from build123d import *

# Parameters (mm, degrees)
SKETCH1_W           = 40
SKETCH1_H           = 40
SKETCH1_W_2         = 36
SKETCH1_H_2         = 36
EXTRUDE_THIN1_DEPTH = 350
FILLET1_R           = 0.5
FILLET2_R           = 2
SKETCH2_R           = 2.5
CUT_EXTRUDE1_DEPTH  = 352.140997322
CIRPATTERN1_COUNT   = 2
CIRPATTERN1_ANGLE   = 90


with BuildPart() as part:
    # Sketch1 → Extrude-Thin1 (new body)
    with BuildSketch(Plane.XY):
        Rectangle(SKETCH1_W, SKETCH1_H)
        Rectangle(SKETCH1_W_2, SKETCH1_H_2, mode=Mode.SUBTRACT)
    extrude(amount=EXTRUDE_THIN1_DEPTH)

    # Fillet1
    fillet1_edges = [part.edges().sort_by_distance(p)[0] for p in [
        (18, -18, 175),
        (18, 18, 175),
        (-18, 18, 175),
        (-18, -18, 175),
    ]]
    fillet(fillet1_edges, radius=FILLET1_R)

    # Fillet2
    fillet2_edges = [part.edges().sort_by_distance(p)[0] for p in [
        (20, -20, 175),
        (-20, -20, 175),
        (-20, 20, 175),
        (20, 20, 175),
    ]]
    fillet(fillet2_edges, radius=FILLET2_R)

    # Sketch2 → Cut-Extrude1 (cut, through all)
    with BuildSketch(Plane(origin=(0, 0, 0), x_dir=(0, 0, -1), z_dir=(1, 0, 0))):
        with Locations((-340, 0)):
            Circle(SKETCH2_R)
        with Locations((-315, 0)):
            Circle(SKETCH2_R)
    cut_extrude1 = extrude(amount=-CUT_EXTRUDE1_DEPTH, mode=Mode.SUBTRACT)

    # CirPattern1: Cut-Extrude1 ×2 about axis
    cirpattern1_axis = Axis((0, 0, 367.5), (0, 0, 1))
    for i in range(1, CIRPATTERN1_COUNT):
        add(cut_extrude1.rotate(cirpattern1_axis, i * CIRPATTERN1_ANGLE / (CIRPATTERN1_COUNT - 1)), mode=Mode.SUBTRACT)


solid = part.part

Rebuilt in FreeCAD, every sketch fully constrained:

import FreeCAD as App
import Part
import Sketcher
from FreeCAD import Vector
Q = App.Units.Quantity


def edges_at(feature, points):
    """Names of the edges that pass closest to the given points."""
    edges = feature.Shape.Edges
    near = lambda p: min(range(len(edges)), key=lambda i: edges[i].distToShape(Part.Vertex(*p))[0])
    return sorted({f"Edge{near(p) + 1}" for p in points})


def add_polygon(sketch, points):
    """Adds a closed chain of lines whose ends are joined by coincident constraints."""
    first, n = sketch.GeometryCount, len(points)
    for a, b in zip(points, points[1:] + points[:1]):
        sketch.addGeometry(Part.LineSegment(App.Vector(*a, 0), App.Vector(*b, 0)), False)
    for i in range(n):
        sketch.addConstraint(Sketcher.Constraint("Coincident", first + i, 2, first + (i + 1) % n, 1))

doc = App.newDocument("Part")
body = doc.addObject("PartDesign::Body", "Body")

# Sketch on XY plane
sketch1 = body.newObject("Sketcher::SketchObject", "Sketch")
sketch1.AttachmentSupport = (doc.getObject("XY_Plane"), [""])
sketch1.MapMode = "FlatFace"
add_polygon(sketch1, [(-20, 20), (-20, -20), (20, -20), (20, 20)])  # lines 0-3
add_polygon(sketch1, [(18, -18), (-18, -18), (-18, 18), (18, 18)])  # lines 4-7
sketch1.addConstraint(Sketcher.Constraint("Vertical", 0))
sketch1.addConstraint(Sketcher.Constraint("Horizontal", 1))
sketch1.addConstraint(Sketcher.Constraint("Vertical", 2))
sketch1.addConstraint(Sketcher.Constraint("Horizontal", 3))
sketch1.addConstraint(Sketcher.Constraint("Horizontal", 4))
sketch1.addConstraint(Sketcher.Constraint("Vertical", 5))
sketch1.addConstraint(Sketcher.Constraint("Horizontal", 6))
sketch1.addConstraint(Sketcher.Constraint("Vertical", 7))
sketch1.addConstraint(Sketcher.Constraint("Symmetric", 0, 2, 2, 2, -1, 1))
sketch1.addConstraint(Sketcher.Constraint("Symmetric", 4, 2, 6, 2, -1, 1))
sketch1.addConstraint(Sketcher.Constraint("Equal", 3, 0))
sketch1.addConstraint(Sketcher.Constraint("Equal", 6, 5))
sketch1.addConstraint(Sketcher.Constraint("DistanceX", 1, 1, 1, 2, Q("40 mm")))
sketch1.addConstraint(Sketcher.Constraint("DistanceX", 4, 2, 4, 1, Q("36 mm")))
pad1 = body.newObject("PartDesign::Pad", "Pad")
pad1.Profile = sketch1
pad1.Length = 350
doc.recompute()

fillet = body.newObject("PartDesign::Fillet", "Fillet")
fillet.Base = (pad1, edges_at(pad1, [
    (18, -18, 175),
    (18, 18, 175),
    (-18, 18, 175),
    (-18, -18, 175),
]))
fillet.Radius = 0.5
doc.recompute()

fillet2 = body.newObject("PartDesign::Fillet", "Fillet001")
fillet2.Base = (fillet, edges_at(fillet, [
    (20, -20, 175),
    (-20, -20, 175),
    (-20, 20, 175),
    (20, 20, 175),
]))
fillet2.Radius = 2

# Sketch on YZ plane
sketch2 = body.newObject("Sketcher::SketchObject", "Sketch001")
sketch2.AttachmentSupport = (doc.getObject("YZ_Plane"), [""])
sketch2.MapMode = "FlatFace"
sketch2.addGeometry(Part.Circle(Vector(0, 340, 0), Vector(0, 0, 1), 2.5), False)
sketch2.addGeometry(Part.Circle(Vector(0, 315, 0), Vector(0, 0, 1), 2.5), False)
sketch2.addConstraint(Sketcher.Constraint("Equal", 0, 1))
sketch2.addConstraint(Sketcher.Constraint("PointOnObject", 0, 3, -2))
sketch2.addConstraint(Sketcher.Constraint("PointOnObject", 1, 3, -2))
sketch2.addConstraint(Sketcher.Constraint("Diameter", 0, Q("5 mm")))
sketch2.addConstraint(Sketcher.Constraint("DistanceY", -1, 1, 0, 3, Q("340 mm")))
sketch2.addConstraint(Sketcher.Constraint("DistanceY", -1, 1, 1, 3, Q("315 mm")))
pocket1 = body.newObject("PartDesign::Pocket", "Pocket")
pocket1.Profile = sketch2
pocket1.Type = "ThroughAll"
doc.recompute()

polarpattern = body.newObject("PartDesign::PolarPattern", "PolarPattern")
polarpattern.Originals = [pocket1]
polarpattern.Axis = (doc.getObject("Z_Axis"), [""])
polarpattern.Angle = 90
polarpattern.Occurrences = 2
body.Tip = polarpattern

doc.recompute()
